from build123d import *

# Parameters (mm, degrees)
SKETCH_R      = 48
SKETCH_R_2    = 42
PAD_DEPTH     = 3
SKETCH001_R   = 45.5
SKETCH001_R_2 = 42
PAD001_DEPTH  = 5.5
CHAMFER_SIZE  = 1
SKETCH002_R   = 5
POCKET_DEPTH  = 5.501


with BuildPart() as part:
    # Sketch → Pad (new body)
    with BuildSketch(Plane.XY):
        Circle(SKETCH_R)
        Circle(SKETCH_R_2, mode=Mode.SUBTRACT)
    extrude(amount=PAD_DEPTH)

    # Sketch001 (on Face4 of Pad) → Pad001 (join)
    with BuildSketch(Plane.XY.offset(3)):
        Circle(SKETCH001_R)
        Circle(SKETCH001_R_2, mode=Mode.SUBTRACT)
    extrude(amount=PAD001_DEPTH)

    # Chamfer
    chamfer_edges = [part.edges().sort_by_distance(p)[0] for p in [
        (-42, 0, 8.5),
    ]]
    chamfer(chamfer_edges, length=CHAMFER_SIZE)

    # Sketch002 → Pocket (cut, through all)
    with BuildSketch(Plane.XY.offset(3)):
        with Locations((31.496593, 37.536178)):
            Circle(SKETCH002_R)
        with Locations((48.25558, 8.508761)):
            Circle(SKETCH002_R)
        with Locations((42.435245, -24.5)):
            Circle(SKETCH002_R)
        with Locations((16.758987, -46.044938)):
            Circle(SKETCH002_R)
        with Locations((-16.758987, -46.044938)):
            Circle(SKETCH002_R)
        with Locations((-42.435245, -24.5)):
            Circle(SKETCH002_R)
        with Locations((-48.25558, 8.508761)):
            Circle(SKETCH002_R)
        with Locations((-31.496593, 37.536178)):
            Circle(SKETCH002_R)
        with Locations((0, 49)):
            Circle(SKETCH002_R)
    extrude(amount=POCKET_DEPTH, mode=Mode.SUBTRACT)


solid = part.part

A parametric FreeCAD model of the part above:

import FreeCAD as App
import Part
import Sketcher

V = App.Vector


def edges_at(feature, points):
    """Names of the edges that pass closest to the given points."""
    edges = feature.Shape.Edges
    near = lambda p: min(range(len(edges)), key=lambda i: edges[i].distToShape(Part.Vertex(*p))[0])
    return sorted({f"Edge{near(p) + 1}" for p in points})

doc = App.newDocument("Part")
body = doc.addObject("PartDesign::Body", "Body")

# Sketch on XY plane
sketch1 = body.newObject("Sketcher::SketchObject", "Sketch")
sketch1.AttachmentSupport = (doc.getObject("XY_Plane"), [""])
sketch1.MapMode = "FlatFace"
sketch1.addGeometry([
    Part.Circle(V(0, 0, 0), V(0, 0, 1), 48),
    Part.Circle(V(0, 0, 0), V(0, 0, 1), 42),
], False)
sketch1.addConstraint([
    Sketcher.Constraint("Coincident", 0, 3, -1, 1),
    Sketcher.Constraint("Coincident", 1, 3, -1, 1),
    Sketcher.Constraint("Diameter", 0, 96.0),
    Sketcher.Constraint("Diameter", 1, 84.0),
])
pad1 = body.newObject("PartDesign::Pad", "Pad")
pad1.Profile = sketch1
pad1.Length = 3

# Sketch on XY plane
sketch2 = body.newObject("Sketcher::SketchObject", "Sketch001")
sketch2.AttachmentSupport = (doc.getObject("XY_Plane"), [""])
sketch2.MapMode = "FlatFace"
sketch2.AttachmentOffset = App.Placement(V(0, 0, 3), App.Rotation())
sketch2.addGeometry([
    Part.Circle(V(0, 0, 0), V(0, 0, 1), 46),
    Part.Circle(V(0, 0, 0), V(0, 0, 1), 42),
], False)
sketch2.addConstraint([
    Sketcher.Constraint("Coincident", 0, 3, -1, 1),
    Sketcher.Constraint("Coincident", 1, 3, -1, 1),
    Sketcher.Constraint("Diameter", 0, 91.0),
    Sketcher.Constraint("Diameter", 1, 84.0),
])
pad2 = body.newObject("PartDesign::Pad", "Pad001")
pad2.Profile = sketch2
pad2.Length = 5.5
doc.recompute()

chamfer = body.newObject("PartDesign::Chamfer", "Chamfer")
chamfer.Base = (pad2, edges_at(pad2, [(-42, 0, 8.5)]))
chamfer.Size = 1

# Sketch on XY plane
sketch3 = body.newObject("Sketcher::SketchObject", "Sketch002")
sketch3.AttachmentSupport = (doc.getObject("XY_Plane"), [""])
sketch3.MapMode = "FlatFace"
sketch3.AttachmentOffset = App.Placement(V(0, 0, 3), App.Rotation())
sketch3.addGeometry([
    Part.Circle(V(31, 38, 0), V(0, 0, 1), 5),  # 0
    Part.Circle(V(48, 9, 0), V(0, 0, 1), 5),  # 1
    Part.Circle(V(42, -24, 0), V(0, 0, 1), 5),  # 2
    Part.Circle(V(17, -46, 0), V(0, 0, 1), 5),  # 3
    Part.Circle(V(-17, -46, 0), V(0, 0, 1), 5),  # 4
    Part.Circle(V(-42, -24, 0), V(0, 0, 1), 5),  # 5
    Part.Circle(V(-48, 9, 0), V(0, 0, 1), 5),  # 6
    Part.Circle(V(-31, 38, 0), V(0, 0, 1), 5),  # 7
    Part.Circle(V(0, 49, 0), V(0, 0, 1), 5),  # 8
], False)
sketch3.addConstraint([
    Sketcher.Constraint("Equal", 0, 1),
    Sketcher.Constraint("Equal", 1, 2),
    Sketcher.Constraint("Equal", 2, 3),
    Sketcher.Constraint("Equal", 3, 4),
    Sketcher.Constraint("Equal", 4, 5),
    Sketcher.Constraint("Equal", 5, 6),
    Sketcher.Constraint("Equal", 6, 7),
    Sketcher.Constraint("Equal", 7, 8),
    Sketcher.Constraint("Symmetric", 3, 3, 4, 3, -2),
    Sketcher.Constraint("Symmetric", 2, 3, 5, 3, -2),
    Sketcher.Constraint("Symmetric", 1, 3, 6, 3, -2),
    Sketcher.Constraint("Symmetric", 0, 3, 7, 3, -2),
    Sketcher.Constraint("PointOnObject", 8, 3, -2),
    Sketcher.Constraint("Diameter", 0, 10.0),
    Sketcher.Constraint("DistanceY", -1, 1, 8, 3, 49.0),
    Sketcher.Constraint("DistanceY", 2, 3, -1, 1, 24.5),
    Sketcher.Constraint("DistanceY", 3, 3, 1, 3, 54.553699),
    Sketcher.Constraint("DistanceX", -1, 1, 1, 3, 48.25558),
    Sketcher.Constraint("DistanceY", -1, 1, 1, 3, 8.508761),
    Sketcher.Constraint("DistanceX", 3, 3, 2, 3, 25.676258),
    Sketcher.Constraint("DistanceX", 4, 3, 0, 3, 48.25558),
    Sketcher.Constraint("DistanceX", 5, 3, 2, 3, 84.87049),
    Sketcher.Constraint("DistanceY", -1, 1, 0, 3, 37.536178),
])
pocket1 = body.newObject("PartDesign::Pocket", "Pocket")
pocket1.Profile = sketch3
pocket1.Type = "ThroughAll"
pocket1.Reversed = True

doc.recompute()
